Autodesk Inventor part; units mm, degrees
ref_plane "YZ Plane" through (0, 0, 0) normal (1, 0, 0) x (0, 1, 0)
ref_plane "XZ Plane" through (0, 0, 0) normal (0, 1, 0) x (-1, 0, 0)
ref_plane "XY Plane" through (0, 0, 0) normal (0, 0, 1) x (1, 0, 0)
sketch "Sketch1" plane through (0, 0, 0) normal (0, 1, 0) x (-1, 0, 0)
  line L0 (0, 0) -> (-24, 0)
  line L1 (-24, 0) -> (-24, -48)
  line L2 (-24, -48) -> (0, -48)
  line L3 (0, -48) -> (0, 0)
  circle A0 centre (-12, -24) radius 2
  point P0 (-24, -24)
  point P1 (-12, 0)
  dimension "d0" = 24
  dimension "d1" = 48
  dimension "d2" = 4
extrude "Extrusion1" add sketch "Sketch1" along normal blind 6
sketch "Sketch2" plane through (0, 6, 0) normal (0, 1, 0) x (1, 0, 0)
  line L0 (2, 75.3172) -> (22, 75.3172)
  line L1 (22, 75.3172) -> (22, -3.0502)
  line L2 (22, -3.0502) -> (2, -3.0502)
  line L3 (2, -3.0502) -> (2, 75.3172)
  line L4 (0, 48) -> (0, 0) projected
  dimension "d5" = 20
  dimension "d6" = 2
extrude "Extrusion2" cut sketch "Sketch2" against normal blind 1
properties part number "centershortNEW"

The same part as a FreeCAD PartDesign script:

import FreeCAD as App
import Part
import Sketcher
from FreeCAD import Vector
Q = App.Units.Quantity


def add_polygon(sketch, points):
    """Adds a closed chain of lines whose ends are joined by coincident constraints."""
    first, n = sketch.GeometryCount, len(points)
    for a, b in zip(points, points[1:] + points[:1]):
        sketch.addGeometry(Part.LineSegment(App.Vector(*a, 0), App.Vector(*b, 0)), False)
    for i in range(n):
        sketch.addConstraint(Sketcher.Constraint("Coincident", first + i, 2, first + (i + 1) % n, 1))

doc = App.newDocument("Part")
body = doc.addObject("PartDesign::Body", "Body")

# Sketch on XZ plane
sketch1 = body.newObject("Sketcher::SketchObject", "Sketch")
sketch1.AttachmentSupport = (doc.getObject("XZ_Plane"), [""])
sketch1.MapMode = "FlatFace"
add_polygon(sketch1, [(0, -48), (0, 0), (24, 0), (24, -48)])  # lines 0-3
sketch1.addGeometry(Part.Circle(Vector(12, -24, 0), Vector(0, 0, 1), 2), False)  # 4
sketch1.addConstraint(Sketcher.Constraint("Vertical", 0))
sketch1.addConstraint(Sketcher.Constraint("Horizontal", 1))
sketch1.addConstraint(Sketcher.Constraint("Vertical", 2))
sketch1.addConstraint(Sketcher.Constraint("Horizontal", 3))
sketch1.addConstraint(Sketcher.Constraint("Coincident", 0, 2, -1, 1))
sketch1.addConstraint(Sketcher.Constraint("Diameter", 4, Q("4 mm")))
sketch1.addConstraint(Sketcher.Constraint("DistanceX", 1, 1, 1, 2, Q("24 mm")))
sketch1.addConstraint(Sketcher.Constraint("DistanceY", 0, 1, 0, 2, Q("48 mm")))
sketch1.addConstraint(Sketcher.Constraint("DistanceY", 4, 3, -1, 1, Q("24 mm")))
sketch1.addConstraint(Sketcher.Constraint("DistanceX", -1, 1, 4, 3, Q("12 mm")))
pad1 = body.newObject("PartDesign::Pad", "Pad")
pad1.Profile = sketch1
pad1.Length = 6
pad1.Reversed = True

# Sketch on XZ plane
sketch2 = body.newObject("Sketcher::SketchObject", "Sketch001")
sketch2.AttachmentSupport = (doc.getObject("XZ_Plane"), [""])
sketch2.MapMode = "FlatFace"
sketch2.AttachmentOffset = App.Placement(Vector(0, 0, -6), App.Rotation())
add_polygon(sketch2, [(22, -75.3172), (2, -75.3172), (2, 3.0502), (22, 3.0502)])  # lines 0-3
sketch2.addConstraint(Sketcher.Constraint("Horizontal", 0))
sketch2.addConstraint(Sketcher.Constraint("Vertical", 1))
sketch2.addConstraint(Sketcher.Constraint("Horizontal", 2))
sketch2.addConstraint(Sketcher.Constraint("Vertical", 3))
sketch2.addConstraint(Sketcher.Constraint("DistanceX", 0, 2, 0, 1, Q("20 mm")))
sketch2.addConstraint(Sketcher.Constraint("DistanceX", -1, 1, 0, 2, Q("2 mm")))
sketch2.addConstraint(Sketcher.Constraint("DistanceY", 1, 1, 1, 2, Q("78.3674 mm")))
sketch2.addConstraint(Sketcher.Constraint("DistanceY", 0, 2, -1, 1, Q("75.3172 mm")))
pocket1 = body.newObject("PartDesign::Pocket", "Pocket")
pocket1.Profile = sketch2
pocket1.Length = 1
pocket1.Reversed = True

doc.recompute()
